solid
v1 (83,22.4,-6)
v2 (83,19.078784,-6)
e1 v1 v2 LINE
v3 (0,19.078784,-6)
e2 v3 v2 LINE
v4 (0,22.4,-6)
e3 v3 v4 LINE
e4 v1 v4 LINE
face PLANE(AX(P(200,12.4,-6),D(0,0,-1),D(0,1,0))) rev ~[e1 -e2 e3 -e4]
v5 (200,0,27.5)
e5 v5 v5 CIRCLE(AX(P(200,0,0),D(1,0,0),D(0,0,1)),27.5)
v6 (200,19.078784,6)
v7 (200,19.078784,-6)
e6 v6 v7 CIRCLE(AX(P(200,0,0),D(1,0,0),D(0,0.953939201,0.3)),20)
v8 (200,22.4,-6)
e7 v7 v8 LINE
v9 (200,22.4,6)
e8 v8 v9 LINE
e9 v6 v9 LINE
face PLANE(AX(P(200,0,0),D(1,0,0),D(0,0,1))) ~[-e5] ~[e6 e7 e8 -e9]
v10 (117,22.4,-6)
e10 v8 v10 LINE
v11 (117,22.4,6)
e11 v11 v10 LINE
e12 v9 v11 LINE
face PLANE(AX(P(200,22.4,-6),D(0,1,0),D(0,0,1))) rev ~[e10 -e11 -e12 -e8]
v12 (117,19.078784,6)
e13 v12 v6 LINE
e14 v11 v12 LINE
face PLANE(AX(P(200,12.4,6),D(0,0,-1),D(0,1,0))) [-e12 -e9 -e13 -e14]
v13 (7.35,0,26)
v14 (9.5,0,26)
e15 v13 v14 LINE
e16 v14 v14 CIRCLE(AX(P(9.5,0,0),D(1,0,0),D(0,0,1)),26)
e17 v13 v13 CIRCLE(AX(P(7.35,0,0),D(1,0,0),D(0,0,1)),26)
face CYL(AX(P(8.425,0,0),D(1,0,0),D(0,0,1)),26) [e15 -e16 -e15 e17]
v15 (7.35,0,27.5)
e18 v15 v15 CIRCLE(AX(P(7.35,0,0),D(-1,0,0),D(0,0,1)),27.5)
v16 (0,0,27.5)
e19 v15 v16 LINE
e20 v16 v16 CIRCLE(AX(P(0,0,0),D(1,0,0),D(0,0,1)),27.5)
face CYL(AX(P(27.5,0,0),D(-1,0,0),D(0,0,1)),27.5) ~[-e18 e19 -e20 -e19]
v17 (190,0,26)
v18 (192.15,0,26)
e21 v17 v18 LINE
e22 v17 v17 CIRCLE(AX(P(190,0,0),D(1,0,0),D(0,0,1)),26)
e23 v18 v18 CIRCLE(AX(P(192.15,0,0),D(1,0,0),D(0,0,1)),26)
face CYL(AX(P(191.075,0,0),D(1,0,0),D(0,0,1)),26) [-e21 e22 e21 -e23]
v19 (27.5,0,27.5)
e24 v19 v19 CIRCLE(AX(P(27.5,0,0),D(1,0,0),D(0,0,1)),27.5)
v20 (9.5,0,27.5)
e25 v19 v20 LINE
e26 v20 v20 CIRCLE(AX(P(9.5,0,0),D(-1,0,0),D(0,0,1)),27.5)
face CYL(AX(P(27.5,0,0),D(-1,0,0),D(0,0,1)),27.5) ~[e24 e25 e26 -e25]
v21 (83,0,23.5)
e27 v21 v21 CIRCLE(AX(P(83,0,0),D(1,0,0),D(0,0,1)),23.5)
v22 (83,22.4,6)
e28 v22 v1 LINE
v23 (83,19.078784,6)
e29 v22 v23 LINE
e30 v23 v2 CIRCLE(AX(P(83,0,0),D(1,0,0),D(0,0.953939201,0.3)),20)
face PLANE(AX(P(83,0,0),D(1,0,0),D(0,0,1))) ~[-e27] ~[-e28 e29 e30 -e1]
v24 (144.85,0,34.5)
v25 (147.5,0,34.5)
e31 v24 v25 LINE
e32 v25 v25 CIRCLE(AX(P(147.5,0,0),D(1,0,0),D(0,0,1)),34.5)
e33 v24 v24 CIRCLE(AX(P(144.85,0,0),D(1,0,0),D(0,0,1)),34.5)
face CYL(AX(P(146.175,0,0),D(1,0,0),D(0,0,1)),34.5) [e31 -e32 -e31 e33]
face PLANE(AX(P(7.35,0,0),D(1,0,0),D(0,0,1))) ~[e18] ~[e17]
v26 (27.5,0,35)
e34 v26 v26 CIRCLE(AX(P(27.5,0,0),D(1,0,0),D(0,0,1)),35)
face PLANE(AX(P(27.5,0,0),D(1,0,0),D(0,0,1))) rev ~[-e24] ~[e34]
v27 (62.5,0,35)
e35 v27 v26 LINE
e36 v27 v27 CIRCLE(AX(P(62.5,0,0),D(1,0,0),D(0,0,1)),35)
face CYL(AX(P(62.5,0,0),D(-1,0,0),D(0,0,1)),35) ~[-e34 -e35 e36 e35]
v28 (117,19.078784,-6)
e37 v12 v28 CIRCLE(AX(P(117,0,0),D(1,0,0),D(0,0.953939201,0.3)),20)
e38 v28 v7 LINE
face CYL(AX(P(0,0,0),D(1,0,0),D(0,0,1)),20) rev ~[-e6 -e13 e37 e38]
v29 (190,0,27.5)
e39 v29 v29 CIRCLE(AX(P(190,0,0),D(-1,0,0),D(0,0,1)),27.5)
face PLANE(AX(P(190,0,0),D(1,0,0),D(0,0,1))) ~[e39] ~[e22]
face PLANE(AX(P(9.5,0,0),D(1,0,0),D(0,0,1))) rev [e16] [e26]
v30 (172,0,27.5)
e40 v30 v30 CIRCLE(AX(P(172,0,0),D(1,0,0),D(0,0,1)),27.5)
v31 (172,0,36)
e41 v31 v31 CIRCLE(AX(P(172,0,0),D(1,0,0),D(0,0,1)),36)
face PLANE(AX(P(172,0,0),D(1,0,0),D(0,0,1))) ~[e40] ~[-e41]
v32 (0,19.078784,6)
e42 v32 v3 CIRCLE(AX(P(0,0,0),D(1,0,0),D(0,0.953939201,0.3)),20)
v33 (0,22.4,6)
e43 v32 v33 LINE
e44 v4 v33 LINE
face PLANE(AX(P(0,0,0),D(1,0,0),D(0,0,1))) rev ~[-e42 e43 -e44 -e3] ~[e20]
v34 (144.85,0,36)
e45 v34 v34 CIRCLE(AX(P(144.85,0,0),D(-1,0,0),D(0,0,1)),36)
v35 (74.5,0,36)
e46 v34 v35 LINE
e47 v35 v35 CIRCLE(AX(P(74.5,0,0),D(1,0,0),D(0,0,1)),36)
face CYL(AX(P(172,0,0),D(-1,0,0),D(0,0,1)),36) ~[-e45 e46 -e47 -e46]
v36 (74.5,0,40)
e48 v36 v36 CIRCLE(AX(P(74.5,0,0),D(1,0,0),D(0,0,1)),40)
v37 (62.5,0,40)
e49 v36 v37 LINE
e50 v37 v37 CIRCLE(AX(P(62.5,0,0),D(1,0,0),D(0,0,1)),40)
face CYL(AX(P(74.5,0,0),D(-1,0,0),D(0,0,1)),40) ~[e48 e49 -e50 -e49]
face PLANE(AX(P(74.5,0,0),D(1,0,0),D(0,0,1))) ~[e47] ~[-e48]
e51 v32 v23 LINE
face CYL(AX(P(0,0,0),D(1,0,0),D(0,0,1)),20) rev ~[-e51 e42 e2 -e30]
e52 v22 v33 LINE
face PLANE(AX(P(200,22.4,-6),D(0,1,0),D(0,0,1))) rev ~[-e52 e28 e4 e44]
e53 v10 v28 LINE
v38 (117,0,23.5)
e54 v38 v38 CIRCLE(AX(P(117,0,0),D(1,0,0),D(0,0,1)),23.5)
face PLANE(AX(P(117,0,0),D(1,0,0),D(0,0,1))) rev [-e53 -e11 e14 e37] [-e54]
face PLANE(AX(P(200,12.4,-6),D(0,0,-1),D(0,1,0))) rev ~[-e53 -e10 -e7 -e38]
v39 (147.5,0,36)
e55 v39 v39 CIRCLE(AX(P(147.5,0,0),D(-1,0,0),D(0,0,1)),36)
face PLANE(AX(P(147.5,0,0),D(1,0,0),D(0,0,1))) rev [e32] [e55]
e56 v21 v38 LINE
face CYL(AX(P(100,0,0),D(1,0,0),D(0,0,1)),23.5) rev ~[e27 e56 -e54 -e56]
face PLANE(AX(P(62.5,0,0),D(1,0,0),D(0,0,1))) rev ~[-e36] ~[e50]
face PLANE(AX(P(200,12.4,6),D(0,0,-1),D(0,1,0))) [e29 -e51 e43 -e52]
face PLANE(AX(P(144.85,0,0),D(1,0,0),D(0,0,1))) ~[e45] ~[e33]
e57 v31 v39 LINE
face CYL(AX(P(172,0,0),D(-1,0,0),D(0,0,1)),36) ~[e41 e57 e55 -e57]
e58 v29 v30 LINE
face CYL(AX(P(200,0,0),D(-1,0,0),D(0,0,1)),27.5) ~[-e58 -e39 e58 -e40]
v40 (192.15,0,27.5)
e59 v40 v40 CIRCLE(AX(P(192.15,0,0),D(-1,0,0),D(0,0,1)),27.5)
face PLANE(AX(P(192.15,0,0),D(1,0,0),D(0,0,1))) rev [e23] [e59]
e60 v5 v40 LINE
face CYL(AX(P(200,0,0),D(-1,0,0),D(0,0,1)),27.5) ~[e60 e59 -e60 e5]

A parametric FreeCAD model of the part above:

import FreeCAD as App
import Part
import Sketcher
Q = App.Units.Quantity

doc = App.newDocument("Part")
body = doc.addObject("PartDesign::Body", "Body")

# Sketch on XZ plane
sketch1 = body.newObject("Sketcher::SketchObject", "Sketch")
sketch1.AttachmentSupport = (doc.getObject("XZ_Plane"), [""])
sketch1.MapMode = "FlatFace"
sketch1.addGeometry(Part.LineSegment(App.Vector(0, 27.5, 0), App.Vector(0, 20, 0)), False)
sketch1.addGeometry(Part.LineSegment(App.Vector(0, 20, 0), App.Vector(200, 20, 0)), False)
sketch1.addGeometry(Part.LineSegment(App.Vector(200, 20, 0), App.Vector(200, 27.5, 0)), False)
sketch1.addGeometry(Part.LineSegment(App.Vector(200, 27.5, 0), App.Vector(172, 27.5, 0)), False)
sketch1.addGeometry(Part.LineSegment(App.Vector(172, 27.5, 0), App.Vector(172, 36, 0)), False)
sketch1.addGeometry(Part.LineSegment(App.Vector(172, 36, 0), App.Vector(74.5, 36, 0)), False)
sketch1.addGeometry(Part.LineSegment(App.Vector(74.5, 36, 0), App.Vector(74.5, 40, 0)), False)
sketch1.addGeometry(Part.LineSegment(App.Vector(74.5, 40, 0), App.Vector(62.5, 40, 0)), False)
sketch1.addGeometry(Part.LineSegment(App.Vector(62.5, 40, 0), App.Vector(62.5, 35, 0)), False)
sketch1.addGeometry(Part.LineSegment(App.Vector(62.5, 35, 0), App.Vector(27.5, 35, 0)), False)
sketch1.addGeometry(Part.LineSegment(App.Vector(27.5, 35, 0), App.Vector(27.5, 27.5, 0)), False)
sketch1.addGeometry(Part.LineSegment(App.Vector(27.5, 27.5, 0), App.Vector(0, 27.5, 0)), False)
sketch1.addConstraint(Sketcher.Constraint("Coincident", 0, 2, 1, 1))
sketch1.addConstraint(Sketcher.Constraint("Coincident", 1, 2, 2, 1))
sketch1.addConstraint(Sketcher.Constraint("Coincident", 2, 2, 3, 1))
sketch1.addConstraint(Sketcher.Constraint("Coincident", 3, 2, 4, 1))
sketch1.addConstraint(Sketcher.Constraint("Coincident", 4, 2, 5, 1))
sketch1.addConstraint(Sketcher.Constraint("Coincident", 5, 2, 6, 1))
sketch1.addConstraint(Sketcher.Constraint("Coincident", 6, 2, 7, 1))
sketch1.addConstraint(Sketcher.Constraint("Coincident", 7, 2, 8, 1))
sketch1.addConstraint(Sketcher.Constraint("Coincident", 8, 2, 9, 1))
sketch1.addConstraint(Sketcher.Constraint("Coincident", 9, 2, 10, 1))
sketch1.addConstraint(Sketcher.Constraint("Coincident", 10, 2, 11, 1))
sketch1.addConstraint(Sketcher.Constraint("Coincident", 11, 2, 0, 1))
sketch1.addConstraint(Sketcher.Constraint("Vertical", 0))
sketch1.addConstraint(Sketcher.Constraint("Horizontal", 1))
sketch1.addConstraint(Sketcher.Constraint("Vertical", 2))
sketch1.addConstraint(Sketcher.Constraint("Horizontal", 3))
sketch1.addConstraint(Sketcher.Constraint("Vertical", 4))
sketch1.addConstraint(Sketcher.Constraint("Horizontal", 5))
sketch1.addConstraint(Sketcher.Constraint("Vertical", 6))
sketch1.addConstraint(Sketcher.Constraint("Horizontal", 7))
sketch1.addConstraint(Sketcher.Constraint("Vertical", 8))
sketch1.addConstraint(Sketcher.Constraint("Horizontal", 9))
sketch1.addConstraint(Sketcher.Constraint("Vertical", 10))
sketch1.addConstraint(Sketcher.Constraint("Horizontal", 11))
sketch1.addConstraint(Sketcher.Constraint("PointOnObject", 0, 2, -2))
sketch1.addConstraint(Sketcher.Constraint("Horizontal", 3, 2, 10, 2))
sketch1.addConstraint(Sketcher.Constraint("Equal", 2, 10))
sketch1.addConstraint(Sketcher.Constraint("DistanceX", 1, 1, 1, 2, Q("200 mm")))
sketch1.addConstraint(Sketcher.Constraint("DistanceX", 3, 2, 3, 1, Q("28 mm")))
sketch1.addConstraint(Sketcher.Constraint("DistanceX", 7, 2, 7, 1, Q("12 mm")))
sketch1.addConstraint(Sketcher.Constraint("DistanceX", 9, 2, 9, 1, Q("35 mm")))
sketch1.addConstraint(Sketcher.Constraint("DistanceY", 6, 1, 6, 2, Q("4 mm")))
sketch1.addConstraint(Sketcher.Constraint("DistanceY", 8, 2, 8, 1, Q("5 mm")))
sketch1.addConstraint(Sketcher.Constraint("DistanceX", 5, 2, 5, 1, Q("97.5 mm")))
sketch1.addConstraint(Sketcher.Constraint("DistanceY", 0, 2, 0, 1, Q("7.5 mm")))
sketch1.addConstraint(Sketcher.Constraint("DistanceY", -1, 1, 0, 2, Q("20 mm")))
revolution = body.newObject("PartDesign::Revolution", "Revolution")
revolution.Profile = sketch1
revolution.ReferenceAxis = (sketch1, ["H_Axis"])
revolution.Angle = 360

# Sketch on XZ plane
sketch2 = body.newObject("Sketcher::SketchObject", "Sketch001")
sketch2.AttachmentSupport = (doc.getObject("XZ_Plane"), [""])
sketch2.MapMode = "FlatFace"
sketch2.addGeometry(Part.LineSegment(App.Vector(83, 24, 0), App.Vector(83, 0, 0)), False)
sketch2.addGeometry(Part.LineSegment(App.Vector(83, 0, 0), App.Vector(117, 0, 0)), False)
sketch2.addGeometry(Part.LineSegment(App.Vector(117, 0, 0), App.Vector(117, 24, 0)), False)
sketch2.addGeometry(Part.LineSegment(App.Vector(117, 24, 0), App.Vector(83, 24, 0)), False)
sketch2.addConstraint(Sketcher.Constraint("Coincident", 0, 2, 1, 1))
sketch2.addConstraint(Sketcher.Constraint("Coincident", 1, 2, 2, 1))
sketch2.addConstraint(Sketcher.Constraint("Coincident", 2, 2, 3, 1))
sketch2.addConstraint(Sketcher.Constraint("Coincident", 3, 2, 0, 1))
sketch2.addConstraint(Sketcher.Constraint("Vertical", 0))
sketch2.addConstraint(Sketcher.Constraint("Horizontal", 1))
sketch2.addConstraint(Sketcher.Constraint("Vertical", 2))
sketch2.addConstraint(Sketcher.Constraint("Horizontal", 3))
sketch2.addConstraint(Sketcher.Constraint("PointOnObject", 0, 2, -1))
sketch2.addConstraint(Sketcher.Constraint("DistanceX", 1, 1, 1, 2, Q("34 mm")))
sketch2.addConstraint(Sketcher.Constraint("DistanceY", 0, 2, 0, 1, Q("23.5 mm")))
sketch2.addConstraint(Sketcher.Constraint("DistanceX", -1, 1, 0, 2, Q("83 mm")))
groove = body.newObject("PartDesign::Groove", "Groove")
groove.Profile = sketch2
groove.ReferenceAxis = (sketch2, ["H_Axis"])
groove.Angle = 360

# Sketch on YZ plane
sketch3 = body.newObject("Sketcher::SketchObject", "Sketch002")
sketch3.AttachmentSupport = (doc.getObject("YZ_Plane"), [""])
sketch3.MapMode = "FlatFace"
sketch3.AttachmentOffset = App.Placement(App.Vector(0, 0, 200), App.Rotation())
sketch3.addGeometry(Part.LineSegment(App.Vector(12, 6, 0), App.Vector(12, -6, 0)), False)
sketch3.addGeometry(Part.LineSegment(App.Vector(12, -6, 0), App.Vector(22, -6, 0)), False)
sketch3.addGeometry(Part.LineSegment(App.Vector(22, -6, 0), App.Vector(22, 6, 0)), False)
sketch3.addGeometry(Part.LineSegment(App.Vector(22, 6, 0), App.Vector(12, 6, 0)), False)
sketch3.addConstraint(Sketcher.Constraint("Coincident", 0, 2, 1, 1))
sketch3.addConstraint(Sketcher.Constraint("Coincident", 1, 2, 2, 1))
sketch3.addConstraint(Sketcher.Constraint("Coincident", 2, 2, 3, 1))
sketch3.addConstraint(Sketcher.Constraint("Coincident", 3, 2, 0, 1))
sketch3.addConstraint(Sketcher.Constraint("Vertical", 0))
sketch3.addConstraint(Sketcher.Constraint("Horizontal", 1))
sketch3.addConstraint(Sketcher.Constraint("Vertical", 2))
sketch3.addConstraint(Sketcher.Constraint("Horizontal", 3))
sketch3.addConstraint(Sketcher.Constraint("DistanceX", 1, 1, 1, 2, Q("10 mm")))
sketch3.addConstraint(Sketcher.Constraint("DistanceY", 0, 2, 0, 1, Q("12 mm")))
sketch3.addConstraint(Sketcher.Constraint("DistanceY", 0, 2, -1, 1, Q("6 mm")))
sketch3.addConstraint(Sketcher.Constraint("DistanceX", -1, 1, 0, 2, Q("12.4 mm")))
pocket1 = body.newObject("PartDesign::Pocket", "Pocket")
pocket1.Profile = sketch3
pocket1.Type = "ThroughAll"

# Sketch on XZ plane
sketch4 = body.newObject("Sketcher::SketchObject", "Sketch003")
sketch4.AttachmentSupport = (doc.getObject("XZ_Plane"), [""])
sketch4.MapMode = "FlatFace"
sketch4.addGeometry(Part.LineSegment(App.Vector(7.3, 36, 0), App.Vector(7.3, 26, 0)), False)
sketch4.addGeometry(Part.LineSegment(App.Vector(7.3, 26, 0), App.Vector(9.5, 26, 0)), False)
sketch4.addGeometry(Part.LineSegment(App.Vector(9.5, 26, 0), App.Vector(9.5, 36, 0)), False)
sketch4.addGeometry(Part.LineSegment(App.Vector(9.5, 36, 0), App.Vector(7.3, 36, 0)), False)
sketch4.addGeometry(Part.LineSegment(App.Vector(190, 36, 0), App.Vector(190, 26, 0)), False)
sketch4.addGeometry(Part.LineSegment(App.Vector(190, 26, 0), App.Vector(192.2, 26, 0)), False)
sketch4.addGeometry(Part.LineSegment(App.Vector(192.2, 26, 0), App.Vector(192.2, 36, 0)), False)
sketch4.addGeometry(Part.LineSegment(App.Vector(192.2, 36, 0), App.Vector(190, 36, 0)), False)
sketch4.addGeometry(Part.LineSegment(App.Vector(144.8, 44.5, 0), App.Vector(144.8, 34.5, 0)), False)
sketch4.addGeometry(Part.LineSegment(App.Vector(144.8, 34.5, 0), App.Vector(147.5, 34.5, 0)), False)
sketch4.addGeometry(Part.LineSegment(App.Vector(147.5, 34.5, 0), App.Vector(147.5, 44.5, 0)), False)
sketch4.addGeometry(Part.LineSegment(App.Vector(147.5, 44.5, 0), App.Vector(144.8, 44.5, 0)), False)
sketch4.addConstraint(Sketcher.Constraint("Coincident", 0, 2, 1, 1))
sketch4.addConstraint(Sketcher.Constraint("Coincident", 1, 2, 2, 1))
sketch4.addConstraint(Sketcher.Constraint("Coincident", 2, 2, 3, 1))
sketch4.addConstraint(Sketcher.Constraint("Coincident", 3, 2, 0, 1))
sketch4.addConstraint(Sketcher.Constraint("Coincident", 4, 2, 5, 1))
sketch4.addConstraint(Sketcher.Constraint("Coincident", 5, 2, 6, 1))
sketch4.addConstraint(Sketcher.Constraint("Coincident", 6, 2, 7, 1))
sketch4.addConstraint(Sketcher.Constraint("Coincident", 7, 2, 4, 1))
sketch4.addConstraint(Sketcher.Constraint("Coincident", 8, 2, 9, 1))
sketch4.addConstraint(Sketcher.Constraint("Coincident", 9, 2, 10, 1))
sketch4.addConstraint(Sketcher.Constraint("Coincident", 10, 2, 11, 1))
sketch4.addConstraint(Sketcher.Constraint("Coincident", 11, 2, 8, 1))
sketch4.addConstraint(Sketcher.Constraint("Vertical", 0))
sketch4.addConstraint(Sketcher.Constraint("Horizontal", 1))
sketch4.addConstraint(Sketcher.Constraint("Vertical", 2))
sketch4.addConstraint(Sketcher.Constraint("Horizontal", 3))
sketch4.addConstraint(Sketcher.Constraint("Vertical", 4))
sketch4.addConstraint(Sketcher.Constraint("Horizontal", 5))
sketch4.addConstraint(Sketcher.Constraint("Vertical", 6))
sketch4.addConstraint(Sketcher.Constraint("Horizontal", 7))
sketch4.addConstraint(Sketcher.Constraint("Vertical", 8))
sketch4.addConstraint(Sketcher.Constraint("Horizontal", 9))
sketch4.addConstraint(Sketcher.Constraint("Vertical", 10))
sketch4.addConstraint(Sketcher.Constraint("Horizontal", 11))
sketch4.addConstraint(Sketcher.Constraint("Horizontal", 1, 2, 4, 2))
sketch4.addConstraint(Sketcher.Constraint("Horizontal", 3, 2, 6, 2))
sketch4.addConstraint(Sketcher.Constraint("Equal", 3, 5))
sketch4.addConstraint(Sketcher.Constraint("Equal", 6, 8))
sketch4.addConstraint(Sketcher.Constraint("DistanceY", 0, 2, 0, 1, Q("10 mm")))
sketch4.addConstraint(Sketcher.Constraint("DistanceY", -1, 1, 0, 2, Q("26 mm")))
sketch4.addConstraint(Sketcher.Constraint("DistanceX", -1, 1, 4, 2, Q("190 mm")))
sketch4.addConstraint(Sketcher.Constraint("DistanceX", 1, 1, 1, 2, Q("2.15 mm")))
sketch4.addConstraint(Sketcher.Constraint("DistanceX", 9, 1, 9, 2, Q("2.65 mm")))
sketch4.addConstraint(Sketcher.Constraint("DistanceX", -1, 1, 1, 2, Q("9.5 mm")))
sketch4.addConstraint(Sketcher.Constraint("DistanceY", -1, 1, 8, 2, Q("34.5 mm")))
sketch4.addConstraint(Sketcher.Constraint("DistanceX", -1, 1, 9, 2, Q("147.5 mm")))
groove2 = body.newObject("PartDesign::Groove", "Groove001")
groove2.Profile = sketch4
groove2.ReferenceAxis = (sketch4, ["H_Axis"])
groove2.Angle = 360

doc.recompute()
